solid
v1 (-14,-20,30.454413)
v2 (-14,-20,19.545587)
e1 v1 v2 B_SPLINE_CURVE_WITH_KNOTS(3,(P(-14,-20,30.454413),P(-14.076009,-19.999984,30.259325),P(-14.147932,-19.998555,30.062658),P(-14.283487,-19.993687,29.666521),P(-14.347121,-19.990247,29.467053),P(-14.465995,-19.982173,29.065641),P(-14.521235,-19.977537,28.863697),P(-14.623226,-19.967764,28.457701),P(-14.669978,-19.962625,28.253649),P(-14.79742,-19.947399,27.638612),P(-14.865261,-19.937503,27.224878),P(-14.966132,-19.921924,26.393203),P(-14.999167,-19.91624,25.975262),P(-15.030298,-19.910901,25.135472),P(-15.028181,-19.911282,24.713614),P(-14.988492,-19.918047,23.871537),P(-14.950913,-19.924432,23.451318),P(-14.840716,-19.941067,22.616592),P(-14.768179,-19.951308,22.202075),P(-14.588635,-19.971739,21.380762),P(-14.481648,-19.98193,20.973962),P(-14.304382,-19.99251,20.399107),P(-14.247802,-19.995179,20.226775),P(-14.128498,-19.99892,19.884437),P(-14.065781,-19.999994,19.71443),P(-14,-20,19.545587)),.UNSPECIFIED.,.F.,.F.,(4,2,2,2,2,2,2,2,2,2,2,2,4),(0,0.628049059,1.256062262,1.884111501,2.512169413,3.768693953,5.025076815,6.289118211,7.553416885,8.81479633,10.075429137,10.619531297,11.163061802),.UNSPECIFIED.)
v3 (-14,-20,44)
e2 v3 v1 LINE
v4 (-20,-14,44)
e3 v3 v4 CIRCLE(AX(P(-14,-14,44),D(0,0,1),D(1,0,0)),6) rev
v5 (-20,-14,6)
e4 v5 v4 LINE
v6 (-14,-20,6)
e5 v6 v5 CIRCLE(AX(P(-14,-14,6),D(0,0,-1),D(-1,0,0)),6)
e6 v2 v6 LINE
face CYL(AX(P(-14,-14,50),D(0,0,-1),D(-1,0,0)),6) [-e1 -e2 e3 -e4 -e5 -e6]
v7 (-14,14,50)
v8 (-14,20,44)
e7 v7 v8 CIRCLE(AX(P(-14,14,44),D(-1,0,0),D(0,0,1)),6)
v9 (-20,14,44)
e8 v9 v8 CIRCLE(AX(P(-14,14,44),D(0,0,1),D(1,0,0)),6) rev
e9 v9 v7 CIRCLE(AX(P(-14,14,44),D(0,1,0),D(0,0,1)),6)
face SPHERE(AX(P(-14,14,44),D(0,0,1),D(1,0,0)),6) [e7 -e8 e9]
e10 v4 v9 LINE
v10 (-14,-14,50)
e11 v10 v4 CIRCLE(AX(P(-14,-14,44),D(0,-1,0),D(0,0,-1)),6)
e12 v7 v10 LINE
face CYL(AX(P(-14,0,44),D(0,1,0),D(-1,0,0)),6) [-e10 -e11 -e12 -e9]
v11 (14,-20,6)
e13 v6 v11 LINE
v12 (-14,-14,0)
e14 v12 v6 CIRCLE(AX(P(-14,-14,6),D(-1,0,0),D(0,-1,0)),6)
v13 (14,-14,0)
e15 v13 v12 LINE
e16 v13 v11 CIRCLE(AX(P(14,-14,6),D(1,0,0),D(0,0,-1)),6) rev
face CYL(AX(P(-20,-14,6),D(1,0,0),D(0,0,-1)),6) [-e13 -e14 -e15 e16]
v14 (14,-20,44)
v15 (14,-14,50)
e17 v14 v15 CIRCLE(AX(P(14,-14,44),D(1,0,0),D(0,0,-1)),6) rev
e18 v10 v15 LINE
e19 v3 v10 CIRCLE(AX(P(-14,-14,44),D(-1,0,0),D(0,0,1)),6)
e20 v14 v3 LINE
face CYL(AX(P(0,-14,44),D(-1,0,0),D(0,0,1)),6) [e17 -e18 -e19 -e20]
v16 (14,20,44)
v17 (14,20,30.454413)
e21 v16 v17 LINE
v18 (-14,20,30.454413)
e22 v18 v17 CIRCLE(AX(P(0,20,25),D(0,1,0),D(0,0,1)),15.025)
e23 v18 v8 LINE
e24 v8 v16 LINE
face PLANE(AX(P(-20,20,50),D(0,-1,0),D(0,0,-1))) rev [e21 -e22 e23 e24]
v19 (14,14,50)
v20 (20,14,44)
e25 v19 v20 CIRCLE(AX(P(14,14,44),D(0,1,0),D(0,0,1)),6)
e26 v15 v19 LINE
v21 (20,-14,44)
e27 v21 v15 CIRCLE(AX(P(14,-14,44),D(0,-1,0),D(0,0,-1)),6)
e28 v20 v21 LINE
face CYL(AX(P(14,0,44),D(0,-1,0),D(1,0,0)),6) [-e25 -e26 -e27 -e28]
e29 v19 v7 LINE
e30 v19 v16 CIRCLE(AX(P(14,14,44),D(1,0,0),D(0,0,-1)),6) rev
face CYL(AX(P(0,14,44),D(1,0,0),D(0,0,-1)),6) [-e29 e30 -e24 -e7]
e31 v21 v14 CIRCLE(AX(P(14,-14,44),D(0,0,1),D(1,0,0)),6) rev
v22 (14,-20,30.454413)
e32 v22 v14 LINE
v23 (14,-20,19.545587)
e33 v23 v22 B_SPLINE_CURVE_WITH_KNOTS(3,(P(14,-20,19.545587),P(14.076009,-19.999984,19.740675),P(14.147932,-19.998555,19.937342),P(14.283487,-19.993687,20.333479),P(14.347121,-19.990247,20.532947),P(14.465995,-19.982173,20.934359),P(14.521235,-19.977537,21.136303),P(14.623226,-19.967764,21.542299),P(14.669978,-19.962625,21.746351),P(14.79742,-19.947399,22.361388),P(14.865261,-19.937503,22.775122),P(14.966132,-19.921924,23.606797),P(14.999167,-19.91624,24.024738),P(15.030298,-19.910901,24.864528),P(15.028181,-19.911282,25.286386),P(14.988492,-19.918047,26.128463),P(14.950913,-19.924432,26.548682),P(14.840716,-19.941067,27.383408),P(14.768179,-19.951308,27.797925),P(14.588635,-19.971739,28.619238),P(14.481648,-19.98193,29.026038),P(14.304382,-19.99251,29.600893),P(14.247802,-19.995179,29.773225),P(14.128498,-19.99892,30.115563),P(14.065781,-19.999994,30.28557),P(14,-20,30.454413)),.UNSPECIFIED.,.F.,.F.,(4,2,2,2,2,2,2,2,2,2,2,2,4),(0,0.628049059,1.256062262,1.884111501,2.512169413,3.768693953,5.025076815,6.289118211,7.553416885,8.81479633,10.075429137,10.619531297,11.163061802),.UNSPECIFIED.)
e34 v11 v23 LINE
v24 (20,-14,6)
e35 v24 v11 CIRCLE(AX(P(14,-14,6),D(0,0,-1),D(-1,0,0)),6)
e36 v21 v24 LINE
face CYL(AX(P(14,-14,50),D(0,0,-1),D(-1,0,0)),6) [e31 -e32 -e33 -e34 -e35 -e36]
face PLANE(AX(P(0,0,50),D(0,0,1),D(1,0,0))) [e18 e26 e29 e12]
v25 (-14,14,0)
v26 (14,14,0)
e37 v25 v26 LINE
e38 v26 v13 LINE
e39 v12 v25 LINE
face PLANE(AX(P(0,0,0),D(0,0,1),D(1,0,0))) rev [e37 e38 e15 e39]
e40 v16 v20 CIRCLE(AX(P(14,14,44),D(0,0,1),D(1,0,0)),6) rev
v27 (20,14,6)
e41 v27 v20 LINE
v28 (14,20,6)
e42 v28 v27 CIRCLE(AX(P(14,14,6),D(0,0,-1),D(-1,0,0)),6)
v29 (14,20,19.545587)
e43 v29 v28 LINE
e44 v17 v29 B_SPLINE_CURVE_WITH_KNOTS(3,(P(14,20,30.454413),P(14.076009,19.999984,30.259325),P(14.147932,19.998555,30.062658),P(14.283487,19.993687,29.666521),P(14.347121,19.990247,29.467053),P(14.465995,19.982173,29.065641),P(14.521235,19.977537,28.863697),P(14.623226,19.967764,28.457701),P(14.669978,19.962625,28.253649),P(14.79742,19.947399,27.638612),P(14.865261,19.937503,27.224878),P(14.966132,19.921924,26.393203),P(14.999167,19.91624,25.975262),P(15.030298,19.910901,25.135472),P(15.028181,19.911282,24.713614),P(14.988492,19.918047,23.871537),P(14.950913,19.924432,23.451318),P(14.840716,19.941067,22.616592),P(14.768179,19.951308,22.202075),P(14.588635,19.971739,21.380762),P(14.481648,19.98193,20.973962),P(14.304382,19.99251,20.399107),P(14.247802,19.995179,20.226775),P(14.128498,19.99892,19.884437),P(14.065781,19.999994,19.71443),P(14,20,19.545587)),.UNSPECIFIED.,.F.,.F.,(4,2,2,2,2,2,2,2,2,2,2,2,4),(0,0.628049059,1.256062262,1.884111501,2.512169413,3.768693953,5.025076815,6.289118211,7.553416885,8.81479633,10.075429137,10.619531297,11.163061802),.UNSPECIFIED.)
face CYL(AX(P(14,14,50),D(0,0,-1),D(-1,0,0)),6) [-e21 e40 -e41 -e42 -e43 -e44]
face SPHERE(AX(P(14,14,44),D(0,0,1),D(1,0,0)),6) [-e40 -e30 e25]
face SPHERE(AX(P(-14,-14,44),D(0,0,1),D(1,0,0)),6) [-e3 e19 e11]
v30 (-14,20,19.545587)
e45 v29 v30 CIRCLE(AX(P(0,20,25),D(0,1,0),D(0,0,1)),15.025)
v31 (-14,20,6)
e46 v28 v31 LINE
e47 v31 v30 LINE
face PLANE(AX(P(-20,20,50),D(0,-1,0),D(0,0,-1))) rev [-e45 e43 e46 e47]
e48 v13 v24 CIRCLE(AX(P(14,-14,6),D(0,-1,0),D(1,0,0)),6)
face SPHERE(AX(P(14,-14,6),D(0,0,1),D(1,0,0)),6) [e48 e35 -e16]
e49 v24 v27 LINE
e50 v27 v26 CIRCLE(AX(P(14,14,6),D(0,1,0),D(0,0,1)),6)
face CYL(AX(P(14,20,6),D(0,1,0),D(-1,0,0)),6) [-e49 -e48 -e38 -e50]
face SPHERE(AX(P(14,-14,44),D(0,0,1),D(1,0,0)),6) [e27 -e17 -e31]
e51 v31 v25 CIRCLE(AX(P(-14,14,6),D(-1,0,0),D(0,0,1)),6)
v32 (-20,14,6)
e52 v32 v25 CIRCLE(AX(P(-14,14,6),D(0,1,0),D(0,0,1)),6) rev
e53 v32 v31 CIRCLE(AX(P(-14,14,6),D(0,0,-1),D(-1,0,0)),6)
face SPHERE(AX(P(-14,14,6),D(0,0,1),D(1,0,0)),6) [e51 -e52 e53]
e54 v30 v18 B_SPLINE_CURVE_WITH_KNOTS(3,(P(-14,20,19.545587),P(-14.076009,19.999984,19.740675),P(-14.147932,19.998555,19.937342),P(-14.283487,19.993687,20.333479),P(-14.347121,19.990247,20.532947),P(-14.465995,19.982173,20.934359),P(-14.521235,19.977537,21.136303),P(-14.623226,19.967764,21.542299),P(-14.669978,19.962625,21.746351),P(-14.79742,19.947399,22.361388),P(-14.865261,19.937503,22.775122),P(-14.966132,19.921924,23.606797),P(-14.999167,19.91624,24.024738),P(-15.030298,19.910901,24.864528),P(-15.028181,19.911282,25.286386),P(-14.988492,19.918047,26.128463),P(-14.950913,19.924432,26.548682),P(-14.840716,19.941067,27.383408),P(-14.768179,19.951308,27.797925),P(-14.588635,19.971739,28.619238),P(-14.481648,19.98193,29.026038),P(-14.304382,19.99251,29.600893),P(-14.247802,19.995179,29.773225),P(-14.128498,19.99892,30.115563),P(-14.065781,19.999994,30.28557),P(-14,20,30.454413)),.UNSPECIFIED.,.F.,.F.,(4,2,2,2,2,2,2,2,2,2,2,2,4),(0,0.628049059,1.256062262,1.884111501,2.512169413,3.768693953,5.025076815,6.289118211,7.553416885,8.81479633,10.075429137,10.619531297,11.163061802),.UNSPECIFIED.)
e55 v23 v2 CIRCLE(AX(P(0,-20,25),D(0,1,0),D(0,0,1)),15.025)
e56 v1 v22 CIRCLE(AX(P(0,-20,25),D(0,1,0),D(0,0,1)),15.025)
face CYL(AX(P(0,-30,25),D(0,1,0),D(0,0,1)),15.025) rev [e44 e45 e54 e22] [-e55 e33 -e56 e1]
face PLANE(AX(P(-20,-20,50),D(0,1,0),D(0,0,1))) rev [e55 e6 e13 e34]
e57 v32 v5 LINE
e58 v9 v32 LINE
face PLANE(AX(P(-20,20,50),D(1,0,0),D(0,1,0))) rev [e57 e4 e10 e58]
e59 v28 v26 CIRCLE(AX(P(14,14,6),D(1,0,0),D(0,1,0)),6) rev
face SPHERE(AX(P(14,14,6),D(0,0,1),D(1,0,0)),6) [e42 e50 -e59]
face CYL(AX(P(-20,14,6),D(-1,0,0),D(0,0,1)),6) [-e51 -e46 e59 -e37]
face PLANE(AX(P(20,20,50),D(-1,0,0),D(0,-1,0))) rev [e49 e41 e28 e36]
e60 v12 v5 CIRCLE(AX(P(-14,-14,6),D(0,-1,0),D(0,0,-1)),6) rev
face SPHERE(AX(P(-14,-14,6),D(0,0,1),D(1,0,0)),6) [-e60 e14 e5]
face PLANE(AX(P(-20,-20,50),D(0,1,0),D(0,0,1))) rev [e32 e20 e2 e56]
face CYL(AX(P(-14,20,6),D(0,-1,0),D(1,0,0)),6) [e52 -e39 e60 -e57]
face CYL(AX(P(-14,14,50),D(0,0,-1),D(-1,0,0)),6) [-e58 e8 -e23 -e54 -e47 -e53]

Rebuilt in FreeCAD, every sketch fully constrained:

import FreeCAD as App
import Part
import Sketcher
Q = App.Units.Quantity


def add_polygon(sketch, points):
    """Adds a closed chain of lines whose ends are joined by coincident constraints."""
    first, n = sketch.GeometryCount, len(points)
    for a, b in zip(points, points[1:] + points[:1]):
        sketch.addGeometry(Part.LineSegment(App.Vector(*a, 0), App.Vector(*b, 0)), False)
    for i in range(n):
        sketch.addConstraint(Sketcher.Constraint("Coincident", first + i, 2, first + (i + 1) % n, 1))

doc = App.newDocument("Part")
params = doc.addObject("Spreadsheet::Sheet", "Params")
for row, (alias, value) in enumerate([
    ("sketch1_width", "40 mm"),
    ("pad1_length", "50 mm"),
    ("fillet_radius", "6 mm"),
    ("sketch2_diameter", "30.05 mm"),
    ("pocket1_length", "50 mm"),
], start=1):
    params.set(f"A{row}", alias)
    params.set(f"B{row}", "=" + value)
    params.setAlias(f"B{row}", alias)

body = doc.addObject("PartDesign::Body", "Body")

sketch1 = doc.addObject("Sketcher::SketchObject", "Sketch")
body.addObject(sketch1)
sketch1.AttachmentSupport = (doc.XY_Plane, [""])
sketch1.MapMode = "FlatFace"
add_polygon(sketch1, [(-20, 20), (-20, -20), (20, -20), (20, 20)])
sketch1.addConstraint(Sketcher.Constraint("Vertical", 0))
sketch1.addConstraint(Sketcher.Constraint("Horizontal", 1))
sketch1.addConstraint(Sketcher.Constraint("Vertical", 2))
sketch1.addConstraint(Sketcher.Constraint("Horizontal", 3))
sketch1.addConstraint(Sketcher.Constraint("Symmetric", 0, 2, 2, 2, -1, 1))
sketch1.addConstraint(Sketcher.Constraint("Equal", 3, 0))
sketch1.addConstraint(Sketcher.Constraint("DistanceX", 1, 1, 1, 2, Q("40 mm")))
sketch1.setExpression("Constraints[10]", "Params.sketch1_width")
pad1 = doc.addObject("PartDesign::Pad", "Pad")
body.addObject(pad1)
pad1.Profile = sketch1
pad1.setExpression("Length", "Params.pad1_length")
doc.recompute()

fillet = doc.addObject("PartDesign::Fillet", "Fillet")
body.addObject(fillet)
fillet.Base = (pad1, ["Edge1"])
fillet.UseAllEdges = True
fillet.setExpression("Radius", "Params.fillet_radius")

sketch2 = doc.addObject("Sketcher::SketchObject", "Sketch001")
body.addObject(sketch2)
sketch2.AttachmentSupport = (doc.XZ_Plane, [""])
sketch2.MapMode = "FlatFace"
sketch2.AttachmentOffset = App.Placement(App.Vector(0, 0, -20), App.Rotation())
sketch2.addGeometry(Part.Circle(App.Vector(0, 25, 0), App.Vector(0, 0, 1), 15), False)
sketch2.addConstraint(Sketcher.Constraint("PointOnObject", 0, 3, -2))
sketch2.addConstraint(Sketcher.Constraint("Diameter", 0, Q("30.05 mm")))
sketch2.addConstraint(Sketcher.Constraint("DistanceY", -1, 1, 0, 3, Q("25 mm")))
sketch2.setExpression("Constraints[1]", "Params.sketch2_diameter")
pocket1 = doc.addObject("PartDesign::Pocket", "Pocket")
body.addObject(pocket1)
pocket1.Profile = sketch2
pocket1.setExpression("Length", "Params.pocket1_length")
pocket1.Reversed = True

doc.recompute()
